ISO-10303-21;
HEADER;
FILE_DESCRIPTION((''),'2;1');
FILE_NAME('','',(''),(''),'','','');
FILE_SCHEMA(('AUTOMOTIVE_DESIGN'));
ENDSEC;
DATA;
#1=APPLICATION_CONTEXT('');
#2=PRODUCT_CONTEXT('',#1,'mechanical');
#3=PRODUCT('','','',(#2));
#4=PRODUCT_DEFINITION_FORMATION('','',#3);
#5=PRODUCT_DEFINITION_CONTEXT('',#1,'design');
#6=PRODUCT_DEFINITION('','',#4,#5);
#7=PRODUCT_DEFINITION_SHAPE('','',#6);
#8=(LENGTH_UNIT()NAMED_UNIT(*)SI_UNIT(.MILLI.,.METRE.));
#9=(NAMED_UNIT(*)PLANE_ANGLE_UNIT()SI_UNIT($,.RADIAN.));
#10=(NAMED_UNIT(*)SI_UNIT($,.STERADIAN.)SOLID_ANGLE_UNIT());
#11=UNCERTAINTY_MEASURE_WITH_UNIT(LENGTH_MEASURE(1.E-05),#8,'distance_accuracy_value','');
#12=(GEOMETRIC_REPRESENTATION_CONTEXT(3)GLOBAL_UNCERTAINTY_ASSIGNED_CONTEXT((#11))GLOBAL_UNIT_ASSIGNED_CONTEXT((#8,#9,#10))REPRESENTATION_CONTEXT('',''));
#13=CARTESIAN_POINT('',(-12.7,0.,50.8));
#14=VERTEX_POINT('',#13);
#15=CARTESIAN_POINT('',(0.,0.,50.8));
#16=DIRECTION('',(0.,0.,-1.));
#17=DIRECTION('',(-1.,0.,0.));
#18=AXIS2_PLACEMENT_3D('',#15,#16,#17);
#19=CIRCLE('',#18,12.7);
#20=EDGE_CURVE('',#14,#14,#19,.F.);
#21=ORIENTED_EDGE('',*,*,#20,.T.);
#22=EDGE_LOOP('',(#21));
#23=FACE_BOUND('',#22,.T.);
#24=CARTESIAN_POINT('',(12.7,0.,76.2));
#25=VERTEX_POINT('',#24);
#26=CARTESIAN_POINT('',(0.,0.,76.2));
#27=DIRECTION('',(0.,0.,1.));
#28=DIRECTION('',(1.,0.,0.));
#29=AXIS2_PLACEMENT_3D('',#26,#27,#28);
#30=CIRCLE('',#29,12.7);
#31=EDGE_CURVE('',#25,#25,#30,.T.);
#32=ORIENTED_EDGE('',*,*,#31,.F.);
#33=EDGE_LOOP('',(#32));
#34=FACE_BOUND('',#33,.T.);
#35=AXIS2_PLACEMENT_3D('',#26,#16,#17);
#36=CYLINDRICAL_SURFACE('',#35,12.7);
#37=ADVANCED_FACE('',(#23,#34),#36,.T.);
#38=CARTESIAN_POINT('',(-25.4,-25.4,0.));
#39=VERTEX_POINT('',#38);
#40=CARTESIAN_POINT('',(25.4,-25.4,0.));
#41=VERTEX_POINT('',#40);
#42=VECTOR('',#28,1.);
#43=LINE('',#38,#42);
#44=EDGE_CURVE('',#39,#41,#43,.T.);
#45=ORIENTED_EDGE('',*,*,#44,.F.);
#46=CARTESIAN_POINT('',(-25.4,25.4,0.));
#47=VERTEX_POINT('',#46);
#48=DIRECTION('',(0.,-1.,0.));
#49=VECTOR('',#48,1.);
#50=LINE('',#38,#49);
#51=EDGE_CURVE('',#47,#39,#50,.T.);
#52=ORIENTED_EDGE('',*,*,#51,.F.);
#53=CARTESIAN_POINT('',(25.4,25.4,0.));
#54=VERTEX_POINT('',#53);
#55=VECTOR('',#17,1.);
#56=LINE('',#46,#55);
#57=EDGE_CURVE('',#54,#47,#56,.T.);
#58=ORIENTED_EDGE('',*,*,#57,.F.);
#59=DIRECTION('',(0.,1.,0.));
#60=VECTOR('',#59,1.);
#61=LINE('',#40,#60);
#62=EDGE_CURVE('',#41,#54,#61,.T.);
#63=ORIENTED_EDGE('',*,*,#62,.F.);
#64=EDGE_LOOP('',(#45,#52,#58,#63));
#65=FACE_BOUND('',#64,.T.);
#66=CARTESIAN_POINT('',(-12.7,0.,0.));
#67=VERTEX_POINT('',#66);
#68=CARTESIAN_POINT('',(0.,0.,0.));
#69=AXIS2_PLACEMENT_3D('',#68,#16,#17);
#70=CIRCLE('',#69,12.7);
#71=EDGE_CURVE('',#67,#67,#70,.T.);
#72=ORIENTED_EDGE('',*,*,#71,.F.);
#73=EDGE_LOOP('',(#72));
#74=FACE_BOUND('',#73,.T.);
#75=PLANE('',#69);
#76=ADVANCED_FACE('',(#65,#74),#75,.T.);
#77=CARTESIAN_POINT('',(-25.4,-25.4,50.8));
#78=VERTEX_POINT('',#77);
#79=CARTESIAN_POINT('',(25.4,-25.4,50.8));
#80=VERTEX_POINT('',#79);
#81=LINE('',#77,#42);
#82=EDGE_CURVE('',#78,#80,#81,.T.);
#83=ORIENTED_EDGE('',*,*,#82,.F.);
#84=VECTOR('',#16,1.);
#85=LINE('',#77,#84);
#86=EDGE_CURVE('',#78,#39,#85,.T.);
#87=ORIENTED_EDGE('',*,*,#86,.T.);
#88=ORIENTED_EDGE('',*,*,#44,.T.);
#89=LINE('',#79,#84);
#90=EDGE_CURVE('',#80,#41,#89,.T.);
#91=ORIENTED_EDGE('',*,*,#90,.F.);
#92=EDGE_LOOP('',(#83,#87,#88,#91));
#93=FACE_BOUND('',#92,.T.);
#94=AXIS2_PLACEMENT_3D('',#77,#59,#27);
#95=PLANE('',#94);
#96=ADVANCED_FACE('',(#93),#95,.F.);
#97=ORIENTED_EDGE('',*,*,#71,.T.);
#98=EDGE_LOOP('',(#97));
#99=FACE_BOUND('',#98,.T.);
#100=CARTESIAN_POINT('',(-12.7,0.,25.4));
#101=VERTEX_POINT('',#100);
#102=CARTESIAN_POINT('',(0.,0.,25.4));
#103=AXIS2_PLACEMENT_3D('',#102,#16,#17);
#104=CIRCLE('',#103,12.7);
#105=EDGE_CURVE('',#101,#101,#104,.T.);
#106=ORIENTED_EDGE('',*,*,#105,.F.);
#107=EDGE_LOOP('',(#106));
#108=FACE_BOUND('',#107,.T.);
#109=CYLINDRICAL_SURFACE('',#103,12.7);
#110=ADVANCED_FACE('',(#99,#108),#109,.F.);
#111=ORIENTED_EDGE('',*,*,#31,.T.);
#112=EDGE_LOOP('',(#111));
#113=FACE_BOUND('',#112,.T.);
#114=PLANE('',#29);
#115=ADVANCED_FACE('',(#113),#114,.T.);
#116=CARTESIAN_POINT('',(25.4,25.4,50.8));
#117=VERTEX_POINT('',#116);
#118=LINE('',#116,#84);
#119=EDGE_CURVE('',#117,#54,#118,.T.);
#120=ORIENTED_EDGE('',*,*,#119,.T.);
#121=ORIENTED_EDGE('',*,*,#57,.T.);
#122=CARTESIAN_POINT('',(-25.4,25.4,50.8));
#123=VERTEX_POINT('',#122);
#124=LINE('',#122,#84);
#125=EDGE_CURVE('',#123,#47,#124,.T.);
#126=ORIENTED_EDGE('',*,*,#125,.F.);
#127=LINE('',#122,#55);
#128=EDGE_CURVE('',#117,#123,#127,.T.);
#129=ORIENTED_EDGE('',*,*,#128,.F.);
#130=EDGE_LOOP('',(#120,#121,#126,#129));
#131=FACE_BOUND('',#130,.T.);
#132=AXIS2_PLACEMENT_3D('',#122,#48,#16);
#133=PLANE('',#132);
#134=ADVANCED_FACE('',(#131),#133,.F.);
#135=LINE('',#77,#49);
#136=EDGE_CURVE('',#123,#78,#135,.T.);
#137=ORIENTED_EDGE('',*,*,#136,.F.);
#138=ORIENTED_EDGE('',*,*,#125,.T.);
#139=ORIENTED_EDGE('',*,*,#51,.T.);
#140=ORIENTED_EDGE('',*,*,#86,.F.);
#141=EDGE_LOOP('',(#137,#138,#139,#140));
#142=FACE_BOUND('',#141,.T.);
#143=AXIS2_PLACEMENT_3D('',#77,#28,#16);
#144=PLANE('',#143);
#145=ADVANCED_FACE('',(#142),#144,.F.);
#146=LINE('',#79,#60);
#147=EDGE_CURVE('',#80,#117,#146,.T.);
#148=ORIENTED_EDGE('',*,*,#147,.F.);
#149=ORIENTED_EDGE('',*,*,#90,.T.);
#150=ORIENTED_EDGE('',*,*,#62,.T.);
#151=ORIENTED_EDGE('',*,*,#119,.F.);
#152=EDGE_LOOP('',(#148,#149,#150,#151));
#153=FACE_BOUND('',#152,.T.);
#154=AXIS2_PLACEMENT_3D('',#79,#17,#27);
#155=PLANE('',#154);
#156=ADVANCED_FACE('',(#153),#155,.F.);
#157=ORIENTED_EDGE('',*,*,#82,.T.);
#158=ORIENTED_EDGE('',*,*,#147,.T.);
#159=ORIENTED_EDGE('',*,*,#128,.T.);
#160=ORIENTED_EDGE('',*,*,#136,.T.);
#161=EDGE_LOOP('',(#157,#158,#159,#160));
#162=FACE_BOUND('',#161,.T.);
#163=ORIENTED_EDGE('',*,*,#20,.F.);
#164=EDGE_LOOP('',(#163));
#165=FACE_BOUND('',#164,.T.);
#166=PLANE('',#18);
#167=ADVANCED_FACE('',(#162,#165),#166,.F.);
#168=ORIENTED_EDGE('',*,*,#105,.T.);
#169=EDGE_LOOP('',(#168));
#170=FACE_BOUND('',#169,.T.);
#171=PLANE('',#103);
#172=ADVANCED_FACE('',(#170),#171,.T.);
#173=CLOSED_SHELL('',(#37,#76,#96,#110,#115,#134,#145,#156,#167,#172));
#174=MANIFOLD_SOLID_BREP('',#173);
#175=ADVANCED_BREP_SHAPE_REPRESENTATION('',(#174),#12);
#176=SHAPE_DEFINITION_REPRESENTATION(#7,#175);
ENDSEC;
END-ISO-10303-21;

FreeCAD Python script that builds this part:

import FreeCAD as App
import Part
import Sketcher

V = App.Vector
Q = App.Units.Quantity

doc = App.newDocument("Part")
body = doc.addObject("PartDesign::Body", "Body")

sketch1 = body.newObject("Sketcher::SketchObject", "Sketch")
sketch1.AttachmentSupport = (doc.getObject("XY_Plane"), [""])
sketch1.MapMode = "FlatFace"
sketch1.addGeometry([
    Part.LineSegment(V(-25.4, 25.4, 0), V(-25.4, -25.4, 0)),
    Part.LineSegment(V(-25.4, -25.4, 0), V(25.4, -25.4, 0)),
    Part.LineSegment(V(25.4, -25.4, 0), V(25.4, 25.4, 0)),
    Part.LineSegment(V(25.4, 25.4, 0), V(-25.4, 25.4, 0)),
], False)
sketch1.addConstraint([
    Sketcher.Constraint("Coincident", 0, 2, 1, 1),
    Sketcher.Constraint("Coincident", 1, 2, 2, 1),
    Sketcher.Constraint("Coincident", 2, 2, 3, 1),
    Sketcher.Constraint("Coincident", 3, 2, 0, 1),
    Sketcher.Constraint("Vertical", 0),
    Sketcher.Constraint("Horizontal", 1),
    Sketcher.Constraint("Vertical", 2),
    Sketcher.Constraint("Horizontal", 3),
    Sketcher.Constraint("Symmetric", 0, 2, 2, 2, -1, 1),
    Sketcher.Constraint("Equal", 3, 0),
    Sketcher.Constraint("DistanceX", 1, 1, 1, 2, Q("2 in")),
])
pad1 = body.newObject("PartDesign::Pad", "Pad")
pad1.Profile = sketch1
pad1.Length = Q("2 in")

sketch2 = body.newObject("Sketcher::SketchObject", "Sketch001")
sketch2.AttachmentSupport = (doc.getObject("XY_Plane"), [""])
sketch2.MapMode = "FlatFace"
sketch2.AttachmentOffset = App.Placement(V(0, 0, 2 * 25.4), App.Rotation())
sketch2.addGeometry(Part.Circle(V(0, 0, 0), V(0, 0, 1), 12.7), False)
sketch2.addConstraint([
    Sketcher.Constraint("Coincident", 0, 3, -1, 1),
    Sketcher.Constraint("Diameter", 0, Q("1 in")),
])
pad2 = body.newObject("PartDesign::Pad", "Pad001")
pad2.Profile = sketch2
pad2.Length = Q("1 in")

sketch3 = body.newObject("Sketcher::SketchObject", "Sketch002")
sketch3.AttachmentSupport = (doc.getObject("XY_Plane"), [""])
sketch3.MapMode = "FlatFace"
sketch3.addGeometry(Part.Circle(V(0, 0, 0), V(0, 0, 1), 12.7), False)
sketch3.addConstraint([
    Sketcher.Constraint("Coincident", 0, 3, -1, 1),
    Sketcher.Constraint("Diameter", 0, Q("1 in")),
])
pocket1 = body.newObject("PartDesign::Pocket", "Pocket")
pocket1.Profile = sketch3
pocket1.Length = Q("1 in")
pocket1.Reversed = True

doc.recompute()
